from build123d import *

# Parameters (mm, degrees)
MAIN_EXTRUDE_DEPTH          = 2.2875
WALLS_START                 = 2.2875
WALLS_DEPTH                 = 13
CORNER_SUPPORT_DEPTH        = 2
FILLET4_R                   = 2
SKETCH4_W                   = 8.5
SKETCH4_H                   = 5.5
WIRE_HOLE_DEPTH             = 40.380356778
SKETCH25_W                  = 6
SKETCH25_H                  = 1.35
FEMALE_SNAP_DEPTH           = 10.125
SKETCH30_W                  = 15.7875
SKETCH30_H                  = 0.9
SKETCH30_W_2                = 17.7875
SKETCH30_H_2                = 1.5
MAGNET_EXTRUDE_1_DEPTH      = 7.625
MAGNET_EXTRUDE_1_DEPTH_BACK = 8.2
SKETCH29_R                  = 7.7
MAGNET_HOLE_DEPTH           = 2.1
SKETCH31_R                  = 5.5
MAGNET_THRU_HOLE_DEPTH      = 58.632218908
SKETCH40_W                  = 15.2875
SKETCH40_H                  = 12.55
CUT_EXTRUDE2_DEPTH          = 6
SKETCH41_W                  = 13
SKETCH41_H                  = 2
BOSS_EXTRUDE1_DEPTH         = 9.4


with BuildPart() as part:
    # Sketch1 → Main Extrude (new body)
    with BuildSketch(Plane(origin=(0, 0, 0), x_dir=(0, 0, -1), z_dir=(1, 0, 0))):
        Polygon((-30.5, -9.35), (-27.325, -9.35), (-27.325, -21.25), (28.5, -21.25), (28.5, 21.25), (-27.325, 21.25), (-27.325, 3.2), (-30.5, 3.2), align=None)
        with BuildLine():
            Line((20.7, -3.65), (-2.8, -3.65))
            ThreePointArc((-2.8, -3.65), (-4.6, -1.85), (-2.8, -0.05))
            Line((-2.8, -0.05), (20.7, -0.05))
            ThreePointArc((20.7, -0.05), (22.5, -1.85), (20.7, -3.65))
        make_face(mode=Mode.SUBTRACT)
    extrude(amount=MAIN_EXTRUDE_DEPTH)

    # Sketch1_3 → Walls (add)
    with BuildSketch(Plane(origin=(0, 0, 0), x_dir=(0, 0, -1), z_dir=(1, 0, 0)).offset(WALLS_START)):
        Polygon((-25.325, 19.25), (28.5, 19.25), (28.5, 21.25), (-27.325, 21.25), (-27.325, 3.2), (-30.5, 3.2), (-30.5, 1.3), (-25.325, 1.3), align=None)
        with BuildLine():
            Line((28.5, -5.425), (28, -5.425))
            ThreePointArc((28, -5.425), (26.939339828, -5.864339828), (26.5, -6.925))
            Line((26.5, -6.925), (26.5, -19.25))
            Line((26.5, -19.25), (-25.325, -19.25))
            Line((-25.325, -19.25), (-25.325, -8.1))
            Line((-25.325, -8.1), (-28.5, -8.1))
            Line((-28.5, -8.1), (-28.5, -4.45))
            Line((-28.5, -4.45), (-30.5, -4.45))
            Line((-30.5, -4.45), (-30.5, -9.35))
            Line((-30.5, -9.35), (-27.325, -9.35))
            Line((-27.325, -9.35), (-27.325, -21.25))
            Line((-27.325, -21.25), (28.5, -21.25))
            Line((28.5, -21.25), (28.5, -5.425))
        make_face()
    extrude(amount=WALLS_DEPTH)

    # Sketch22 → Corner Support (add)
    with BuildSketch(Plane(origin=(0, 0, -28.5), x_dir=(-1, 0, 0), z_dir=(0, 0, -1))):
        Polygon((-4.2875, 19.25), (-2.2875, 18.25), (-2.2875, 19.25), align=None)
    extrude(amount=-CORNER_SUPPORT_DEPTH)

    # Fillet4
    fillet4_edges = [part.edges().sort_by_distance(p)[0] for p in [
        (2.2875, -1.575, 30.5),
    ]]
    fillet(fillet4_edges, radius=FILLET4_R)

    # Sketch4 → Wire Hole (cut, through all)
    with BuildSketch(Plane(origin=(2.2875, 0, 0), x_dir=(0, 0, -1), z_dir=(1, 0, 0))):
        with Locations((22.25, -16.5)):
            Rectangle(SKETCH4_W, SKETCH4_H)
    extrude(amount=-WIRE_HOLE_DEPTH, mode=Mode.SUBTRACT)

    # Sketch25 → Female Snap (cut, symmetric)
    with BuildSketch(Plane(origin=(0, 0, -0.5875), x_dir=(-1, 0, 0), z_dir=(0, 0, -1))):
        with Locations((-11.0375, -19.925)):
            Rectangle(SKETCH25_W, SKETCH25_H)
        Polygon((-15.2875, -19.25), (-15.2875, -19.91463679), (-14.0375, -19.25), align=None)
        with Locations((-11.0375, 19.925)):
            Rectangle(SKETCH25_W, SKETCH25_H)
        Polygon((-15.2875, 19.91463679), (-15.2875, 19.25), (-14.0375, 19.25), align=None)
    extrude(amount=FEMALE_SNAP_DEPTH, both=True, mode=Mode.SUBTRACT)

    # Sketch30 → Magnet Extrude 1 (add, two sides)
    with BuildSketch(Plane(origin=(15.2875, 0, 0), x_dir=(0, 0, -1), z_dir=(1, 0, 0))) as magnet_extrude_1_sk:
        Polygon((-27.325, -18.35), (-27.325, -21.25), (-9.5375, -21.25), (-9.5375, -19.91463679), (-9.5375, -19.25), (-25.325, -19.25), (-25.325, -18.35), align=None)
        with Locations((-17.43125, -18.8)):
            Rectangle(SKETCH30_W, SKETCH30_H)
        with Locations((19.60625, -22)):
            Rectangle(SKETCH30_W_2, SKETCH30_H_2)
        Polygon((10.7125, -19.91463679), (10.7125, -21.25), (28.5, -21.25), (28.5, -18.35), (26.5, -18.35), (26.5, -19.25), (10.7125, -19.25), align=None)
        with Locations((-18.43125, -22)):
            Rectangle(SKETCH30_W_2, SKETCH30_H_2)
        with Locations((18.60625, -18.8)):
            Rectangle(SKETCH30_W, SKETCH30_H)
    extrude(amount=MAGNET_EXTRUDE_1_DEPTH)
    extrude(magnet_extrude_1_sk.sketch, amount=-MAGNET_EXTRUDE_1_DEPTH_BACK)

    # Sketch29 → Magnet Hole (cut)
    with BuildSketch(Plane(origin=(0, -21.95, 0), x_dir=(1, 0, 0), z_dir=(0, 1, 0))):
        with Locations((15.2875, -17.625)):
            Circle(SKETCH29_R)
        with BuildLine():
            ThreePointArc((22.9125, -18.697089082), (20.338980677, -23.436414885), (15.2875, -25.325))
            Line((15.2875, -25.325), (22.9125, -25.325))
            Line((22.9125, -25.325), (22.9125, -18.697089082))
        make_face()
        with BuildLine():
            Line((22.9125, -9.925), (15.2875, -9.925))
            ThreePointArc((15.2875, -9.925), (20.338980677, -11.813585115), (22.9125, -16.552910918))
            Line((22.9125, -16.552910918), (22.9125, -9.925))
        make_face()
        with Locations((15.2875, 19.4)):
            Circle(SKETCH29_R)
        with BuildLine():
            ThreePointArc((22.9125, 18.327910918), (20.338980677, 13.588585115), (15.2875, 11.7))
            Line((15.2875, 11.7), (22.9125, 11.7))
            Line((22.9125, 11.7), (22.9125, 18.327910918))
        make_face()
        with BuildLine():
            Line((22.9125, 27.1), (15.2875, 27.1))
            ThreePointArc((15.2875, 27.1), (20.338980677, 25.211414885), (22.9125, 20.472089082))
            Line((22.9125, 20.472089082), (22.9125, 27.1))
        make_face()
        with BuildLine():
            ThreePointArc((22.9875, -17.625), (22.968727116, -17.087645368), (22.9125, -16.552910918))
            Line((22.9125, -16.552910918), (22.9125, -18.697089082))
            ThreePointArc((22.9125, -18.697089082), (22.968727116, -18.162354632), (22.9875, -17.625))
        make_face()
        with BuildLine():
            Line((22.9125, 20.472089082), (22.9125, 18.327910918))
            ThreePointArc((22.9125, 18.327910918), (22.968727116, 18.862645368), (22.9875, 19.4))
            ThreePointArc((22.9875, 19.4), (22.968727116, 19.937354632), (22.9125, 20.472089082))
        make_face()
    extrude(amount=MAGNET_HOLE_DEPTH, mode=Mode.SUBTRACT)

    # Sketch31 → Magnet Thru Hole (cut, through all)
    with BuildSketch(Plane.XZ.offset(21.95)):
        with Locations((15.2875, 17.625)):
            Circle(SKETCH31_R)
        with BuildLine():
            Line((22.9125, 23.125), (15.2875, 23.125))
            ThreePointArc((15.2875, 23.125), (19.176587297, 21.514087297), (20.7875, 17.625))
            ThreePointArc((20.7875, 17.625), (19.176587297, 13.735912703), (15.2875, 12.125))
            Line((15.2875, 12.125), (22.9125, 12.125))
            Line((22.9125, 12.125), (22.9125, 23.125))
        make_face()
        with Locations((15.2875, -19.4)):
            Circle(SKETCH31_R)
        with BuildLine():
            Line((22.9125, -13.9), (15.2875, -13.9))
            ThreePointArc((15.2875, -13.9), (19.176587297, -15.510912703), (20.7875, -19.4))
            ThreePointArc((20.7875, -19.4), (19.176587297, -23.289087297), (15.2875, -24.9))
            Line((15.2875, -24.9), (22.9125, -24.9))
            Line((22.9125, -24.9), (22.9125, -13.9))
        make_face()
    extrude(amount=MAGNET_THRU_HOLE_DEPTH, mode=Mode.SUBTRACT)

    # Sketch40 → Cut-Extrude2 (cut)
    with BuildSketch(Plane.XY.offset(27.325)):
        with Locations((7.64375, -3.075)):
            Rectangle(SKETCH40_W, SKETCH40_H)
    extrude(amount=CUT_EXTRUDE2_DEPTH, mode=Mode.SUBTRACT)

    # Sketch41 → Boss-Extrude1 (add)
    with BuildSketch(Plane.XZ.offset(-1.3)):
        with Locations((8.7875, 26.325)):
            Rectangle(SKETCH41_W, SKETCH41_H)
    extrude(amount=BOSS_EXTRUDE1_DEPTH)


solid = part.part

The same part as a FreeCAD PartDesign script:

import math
import FreeCAD as App
import Part
import Sketcher

V = App.Vector
Q = App.Units.Quantity


def edges_at(feature, points):
    """Names of the edges that pass closest to the given points."""
    edges = feature.Shape.Edges
    near = lambda p: min(range(len(edges)), key=lambda i: edges[i].distToShape(Part.Vertex(*p))[0])
    return sorted({f"Edge{near(p) + 1}" for p in points})

doc = App.newDocument("Part")
params = doc.addObject("Spreadsheet::Sheet", "Params")
for row, (alias, value) in enumerate([
    ("sketch1_radius", "1.8 mm"),
    ("sketch1_width", "11.9 mm"),
    ("sketch1_width2", "42.5 mm"),
    ("sketch1_height", "23.5 mm"),
    ("sketch1_width3", "18.05 mm"),
    ("pad1_length", "2.2875 mm"),
    ("sketch2_radius", "1.5 mm"),
    ("sketch2_width", "2 mm"),
    ("sketch2_width2", "1.9 mm"),
    ("sketch2_width3", "4.9 mm"),
    ("sketch2_width4", "11.9 mm"),
    ("pad2_length", "13 mm"),
    ("sketch3_width", "2 mm"),
    ("sketch3_height", "1 mm"),
    ("pad3_length", "2 mm"),
    ("fillet_radius", "2 mm"),
    ("sketch4_width", "5.5 mm"),
    ("sketch4_height", "8.5 mm"),
    ("sketch5_width", "6 mm"),
    ("sketch5_width2", "1.25 mm"),
    ("sketch5_height", "1.35 mm"),
    ("pocket2_length", "20.25 mm"),
    ("sketch6_width", "4.4 mm"),
    ("pad4_length", "7.625 mm"),
    ("pad4_length2", "8.2 mm"),
    ("sketch7_radius", "7.7 mm"),
    ("pocket3_length", "2.1 mm"),
    ("sketch8_radius", "5.5 mm"),
    ("sketch9_height", "12.55 mm"),
    ("pocket5_length", "6 mm"),
    ("sketch10_width", "13 mm"),
    ("sketch10_height", "2 mm"),
    ("pad5_length", "9.4 mm"),
], start=1):
    params.set(f"A{row}", alias)
    params.set(f"B{row}", "=" + value)
    params.setAlias(f"B{row}", alias)

body = doc.addObject("PartDesign::Body", "Body")

# Sketch on YZ plane
sketch1 = doc.addObject("Sketcher::SketchObject", "Sketch")
body.addObject(sketch1)
sketch1.AttachmentSupport = (doc.YZ_Plane, [""])
sketch1.MapMode = "FlatFace"
sketch1.addGeometry(Part.LineSegment(V(-9.3, 30.5, 0), V(-9.3, 27.3, 0)), False)
sketch1.addGeometry(Part.LineSegment(V(-9.3, 27.3, 0), V(-21.2, 27.3, 0)), False)
sketch1.addGeometry(Part.LineSegment(V(-21.2, 27.3, 0), V(-21.2, -28.5, 0)), False)
sketch1.addGeometry(Part.LineSegment(V(-21.2, -28.5, 0), V(21.2, -28.5, 0)), False)
sketch1.addGeometry(Part.LineSegment(V(21.2, -28.5, 0), V(21.2, 27.3, 0)), False)
sketch1.addGeometry(Part.LineSegment(V(21.2, 27.3, 0), V(3.2, 27.3, 0)), False)
sketch1.addGeometry(Part.LineSegment(V(3.2, 27.3, 0), V(3.2, 30.5, 0)), False)
sketch1.addGeometry(Part.LineSegment(V(3.2, 30.5, 0), V(-9.3, 30.5, 0)), False)
sketch1.addGeometry(Part.ArcOfCircle(Part.Circle(V(-1.9, -20.7, 0), V(0, 0, 1), 1.8), math.radians(180), math.radians(360)), False)
sketch1.addGeometry(Part.LineSegment(V(-3.6, -20.7, 0), V(-3.6, 2.8, 0)), False)
sketch1.addGeometry(Part.ArcOfCircle(Part.Circle(V(-1.9, 2.8, 0), V(0, 0, 1), 1.8), math.radians(0), math.radians(180)), False)
sketch1.addGeometry(Part.LineSegment(V(-0.1, 2.8, 0), V(-0.1, -20.7, 0)), False)
sketch1.addConstraint(Sketcher.Constraint("Coincident", 0, 2, 1, 1))
sketch1.addConstraint(Sketcher.Constraint("Coincident", 1, 2, 2, 1))
sketch1.addConstraint(Sketcher.Constraint("Coincident", 2, 2, 3, 1))
sketch1.addConstraint(Sketcher.Constraint("Coincident", 3, 2, 4, 1))
sketch1.addConstraint(Sketcher.Constraint("Coincident", 4, 2, 5, 1))
sketch1.addConstraint(Sketcher.Constraint("Coincident", 5, 2, 6, 1))
sketch1.addConstraint(Sketcher.Constraint("Coincident", 6, 2, 7, 1))
sketch1.addConstraint(Sketcher.Constraint("Coincident", 7, 2, 0, 1))
sketch1.addConstraint(Sketcher.Constraint("Tangent", 8, 1, 9, 1))
sketch1.addConstraint(Sketcher.Constraint("Tangent", 9, 2, 10, 2))
sketch1.addConstraint(Sketcher.Constraint("Tangent", 10, 1, 11, 1))
sketch1.addConstraint(Sketcher.Constraint("Tangent", 11, 2, 8, 2))
sketch1.addConstraint(Sketcher.Constraint("Vertical", 0))
sketch1.addConstraint(Sketcher.Constraint("Horizontal", 1))
sketch1.addConstraint(Sketcher.Constraint("Vertical", 2))
sketch1.addConstraint(Sketcher.Constraint("Horizontal", 3))
sketch1.addConstraint(Sketcher.Constraint("Vertical", 4))
sketch1.addConstraint(Sketcher.Constraint("Horizontal", 5))
sketch1.addConstraint(Sketcher.Constraint("Vertical", 6))
sketch1.addConstraint(Sketcher.Constraint("Horizontal", 7))
sketch1.addConstraint(Sketcher.Constraint("Vertical", 9))
sketch1.addConstraint(Sketcher.Constraint("Vertical", 11))
sketch1.addConstraint(Sketcher.Constraint("Symmetric", 1, 2, 4, 2, -2))
sketch1.addConstraint(Sketcher.Constraint("Radius", 8, Q("1.8 mm")))
sketch1.addConstraint(Sketcher.Constraint("DistanceX", 1, 2, 1, 1, Q("11.9 mm")))
sketch1.addConstraint(Sketcher.Constraint("DistanceX", 3, 1, 3, 2, Q("42.5 mm")))
sketch1.addConstraint(Sketcher.Constraint("DistanceY", 9, 1, 9, 2, Q("23.5 mm")))
sketch1.addConstraint(Sketcher.Constraint("DistanceX", 5, 2, 5, 1, Q("18.05 mm")))
sketch1.addConstraint(Sketcher.Constraint("DistanceY", 8, 3, -1, 1, Q("20.7 mm")))
sketch1.addConstraint(Sketcher.Constraint("DistanceY", 2, 2, -1, 1, Q("28.5 mm")))
sketch1.addConstraint(Sketcher.Constraint("DistanceY", -1, 1, 6, 2, Q("30.5 mm")))
sketch1.addConstraint(Sketcher.Constraint("DistanceX", 0, 2, 10, 3, Q("7.5 mm")))
sketch1.addConstraint(Sketcher.Constraint("DistanceY", 0, 2, 0, 1, Q("3.175 mm")))
sketch1.setExpression("Constraints[23]", "Params.sketch1_radius")
sketch1.setExpression("Constraints[24]", "Params.sketch1_width")
sketch1.setExpression("Constraints[25]", "Params.sketch1_width2")
sketch1.setExpression("Constraints[26]", "Params.sketch1_height")
sketch1.setExpression("Constraints[27]", "Params.sketch1_width3")
pad1 = doc.addObject("PartDesign::Pad", "Pad")
body.addObject(pad1)
pad1.Profile = sketch1
pad1.setExpression("Length", "Params.pad1_length")

# Sketch on YZ plane
sketch2 = doc.addObject("Sketcher::SketchObject", "Sketch001")
body.addObject(sketch2)
sketch2.AttachmentSupport = (doc.YZ_Plane, [""])
sketch2.MapMode = "FlatFace"
sketch2.AttachmentOffset = App.Placement(V(0, 0, 2.2875), App.Rotation())
sketch2.addGeometry(Part.LineSegment(V(19.2, 25.3, 0), V(19.2, -28.5, 0)), False)
sketch2.addGeometry(Part.LineSegment(V(19.2, -28.5, 0), V(21.2, -28.5, 0)), False)
sketch2.addGeometry(Part.LineSegment(V(21.2, -28.5, 0), V(21.2, 27.3, 0)), False)
sketch2.addGeometry(Part.LineSegment(V(21.2, 27.3, 0), V(3.2, 27.3, 0)), False)
sketch2.addGeometry(Part.LineSegment(V(3.2, 27.3, 0), V(3.2, 30.5, 0)), False)
sketch2.addGeometry(Part.LineSegment(V(3.2, 30.5, 0), V(1.3, 30.5, 0)), False)
sketch2.addGeometry(Part.LineSegment(V(1.3, 30.5, 0), V(1.3, 25.3, 0)), False)
sketch2.addGeometry(Part.LineSegment(V(1.3, 25.3, 0), V(19.2, 25.3, 0)), False)
sketch2.addGeometry(Part.LineSegment(V(-5.4, -28.5, 0), V(-5.4, -28, 0)), False)
sketch2.addGeometry(Part.ArcOfCircle(Part.Circle(V(-6.9, -28, 0), V(0, 0, 1), 1.5), math.radians(0), math.radians(90)), False)
sketch2.addGeometry(Part.LineSegment(V(-6.9, -26.5, 0), V(-19.2, -26.5, 0)), False)
sketch2.addGeometry(Part.LineSegment(V(-19.2, -26.5, 0), V(-19.2, 25.3, 0)), False)
sketch2.addGeometry(Part.LineSegment(V(-19.2, 25.3, 0), V(-8.1, 25.3, 0)), False)
sketch2.addGeometry(Part.LineSegment(V(-8.1, 25.3, 0), V(-8.1, 28.5, 0)), False)
sketch2.addGeometry(Part.LineSegment(V(-8.1, 28.5, 0), V(-4.5, 28.5, 0)), False)
sketch2.addGeometry(Part.LineSegment(V(-4.5, 28.5, 0), V(-4.5, 30.5, 0)), False)
sketch2.addGeometry(Part.LineSegment(V(-4.5, 30.5, 0), V(-9.3, 30.5, 0)), False)
sketch2.addGeometry(Part.LineSegment(V(-9.3, 30.5, 0), V(-9.3, 27.3, 0)), False)
sketch2.addGeometry(Part.LineSegment(V(-9.3, 27.3, 0), V(-21.2, 27.3, 0)), False)
sketch2.addGeometry(Part.LineSegment(V(-21.2, 27.3, 0), V(-21.2, -28.5, 0)), False)
sketch2.addGeometry(Part.LineSegment(V(-21.2, -28.5, 0), V(-5.4, -28.5, 0)), False)
sketch2.addConstraint(Sketcher.Constraint("Coincident", 0, 2, 1, 1))
sketch2.addConstraint(Sketcher.Constraint("Coincident", 1, 2, 2, 1))
sketch2.addConstraint(Sketcher.Constraint("Coincident", 2, 2, 3, 1))
sketch2.addConstraint(Sketcher.Constraint("Coincident", 3, 2, 4, 1))
sketch2.addConstraint(Sketcher.Constraint("Coincident", 4, 2, 5, 1))
sketch2.addConstraint(Sketcher.Constraint("Coincident", 5, 2, 6, 1))
sketch2.addConstraint(Sketcher.Constraint("Coincident", 6, 2, 7, 1))
sketch2.addConstraint(Sketcher.Constraint("Coincident", 7, 2, 0, 1))
sketch2.addConstraint(Sketcher.Constraint("Tangent", 8, 2, 9, 1))
sketch2.addConstraint(Sketcher.Constraint("Tangent", 9, 2, 10, 1))
sketch2.addConstraint(Sketcher.Constraint("Coincident", 10, 2, 11, 1))
sketch2.addConstraint(Sketcher.Constraint("Coincident", 11, 2, 12, 1))
sketch2.addConstraint(Sketcher.Constraint("Coincident", 12, 2, 13, 1))
sketch2.addConstraint(Sketcher.Constraint("Coincident", 13, 2, 14, 1))
sketch2.addConstraint(Sketcher.Constraint("Coincident", 14, 2, 15, 1))
sketch2.addConstraint(Sketcher.Constraint("Coincident", 15, 2, 16, 1))
sketch2.addConstraint(Sketcher.Constraint("Coincident", 16, 2, 17, 1))
sketch2.addConstraint(Sketcher.Constraint("Coincident", 17, 2, 18, 1))
sketch2.addConstraint(Sketcher.Constraint("Coincident", 18, 2, 19, 1))
sketch2.addConstraint(Sketcher.Constraint("Coincident", 19, 2, 20, 1))
sketch2.addConstraint(Sketcher.Constraint("Coincident", 20, 2, 8, 1))
sketch2.addConstraint(Sketcher.Constraint("Vertical", 0))
sketch2.addConstraint(Sketcher.Constraint("Horizontal", 1))
sketch2.addConstraint(Sketcher.Constraint("Vertical", 2))
sketch2.addConstraint(Sketcher.Constraint("Horizontal", 3))
sketch2.addConstraint(Sketcher.Constraint("Vertical", 4))
sketch2.addConstraint(Sketcher.Constraint("Horizontal", 5))
sketch2.addConstraint(Sketcher.Constraint("Vertical", 6))
sketch2.addConstraint(Sketcher.Constraint("Horizontal", 7))
sketch2.addConstraint(Sketcher.Constraint("Vertical", 8))
sketch2.addConstraint(Sketcher.Constraint("Horizontal", 10))
sketch2.addConstraint(Sketcher.Constraint("Vertical", 11))
sketch2.addConstraint(Sketcher.Constraint("Horizontal", 12))
sketch2.addConstraint(Sketcher.Constraint("Vertical", 13))
sketch2.addConstraint(Sketcher.Constraint("Horizontal", 14))
sketch2.addConstraint(Sketcher.Constraint("Vertical", 15))
sketch2.addConstraint(Sketcher.Constraint("Horizontal", 16))
sketch2.addConstraint(Sketcher.Constraint("Vertical", 17))
sketch2.addConstraint(Sketcher.Constraint("Horizontal", 18))
sketch2.addConstraint(Sketcher.Constraint("Vertical", 19))
sketch2.addConstraint(Sketcher.Constraint("Horizontal", 20))
sketch2.addConstraint(Sketcher.Constraint("Symmetric", 7, 2, 11, 2, -2))
sketch2.addConstraint(Sketcher.Constraint("Symmetric", 2, 2, 18, 2, -2))
sketch2.addConstraint(Sketcher.Constraint("Horizontal", 5, 2, 15, 2))
sketch2.addConstraint(Sketcher.Constraint("Horizontal", 1, 2, 19, 2))
sketch2.addConstraint(Sketcher.Constraint("Equal", 4, 13))
sketch2.addConstraint(Sketcher.Constraint("Equal", 1, 15))
sketch2.addConstraint(Sketcher.Constraint("Radius", 9, Q("1.5 mm")))
sketch2.addConstraint(Sketcher.Constraint("DistanceX", 1, 1, 1, 2, Q("2 mm")))
sketch2.addConstraint(Sketcher.Constraint("DistanceX", 5, 2, 5, 1, Q("1.9 mm")))
sketch2.addConstraint(Sketcher.Constraint("DistanceX", 16, 2, 16, 1, Q("4.9 mm")))
sketch2.addConstraint(Sketcher.Constraint("DistanceX", 18, 2, 18, 1, Q("11.9 mm")))
sketch2.addConstraint(Sketcher.Constraint("DistanceY", 8, 1, 8, 2, Q("0.5 mm")))
sketch2.addConstraint(Sketcher.Constraint("DistanceY", 9, 3, -1, 1, Q("28 mm")))
sketch2.addConstraint(Sketcher.Constraint("DistanceY", 0, 2, 4, 2, Q("59 mm")))
sketch2.addConstraint(Sketcher.Constraint("DistanceX", 3, 2, 3, 1, Q("18.05 mm")))
sketch2.addConstraint(Sketcher.Constraint("DistanceX", 12, 1, 12, 2, Q("11.15 mm")))
sketch2.addConstraint(Sketcher.Constraint("DistanceX", -1, 1, 3, 2, Q("3.2 mm")))
sketch2.addConstraint(Sketcher.Constraint("DistanceX", 10, 2, 10, 1, Q("12.325 mm")))
sketch2.addConstraint(Sketcher.Constraint("DistanceY", 0, 2, 0, 1, Q("53.825 mm")))
sketch2.setExpression("Constraints[47]", "Params.sketch2_radius")
sketch2.setExpression("Constraints[48]", "Params.sketch2_width")
sketch2.setExpression("Constraints[49]", "Params.sketch2_width2")
sketch2.setExpression("Constraints[50]", "Params.sketch2_width3")
sketch2.setExpression("Constraints[51]", "Params.sketch2_width4")
pad2 = doc.addObject("PartDesign::Pad", "Pad001")
body.addObject(pad2)
pad2.Profile = sketch2
pad2.setExpression("Length", "Params.pad2_length")

# Sketch on XY plane
sketch3 = doc.addObject("Sketcher::SketchObject", "Sketch002")
body.addObject(sketch3)
sketch3.AttachmentSupport = (doc.XY_Plane, [""])
sketch3.MapMode = "FlatFace"
sketch3.AttachmentOffset = App.Placement(V(0, 0, -28.5), App.Rotation())
sketch3.addGeometry(Part.LineSegment(V(4.3, 19.2, 0), V(2.3, 18.2, 0)), False)
sketch3.addGeometry(Part.LineSegment(V(2.3, 18.2, 0), V(2.3, 19.2, 0)), False)
sketch3.addGeometry(Part.LineSegment(V(2.3, 19.2, 0), V(4.3, 19.2, 0)), False)
sketch3.addConstraint(Sketcher.Constraint("Coincident", 0, 2, 1, 1))
sketch3.addConstraint(Sketcher.Constraint("Coincident", 1, 2, 2, 1))
sketch3.addConstraint(Sketcher.Constraint("Coincident", 2, 2, 0, 1))
sketch3.addConstraint(Sketcher.Constraint("Vertical", 1))
sketch3.addConstraint(Sketcher.Constraint("Horizontal", 2))
sketch3.addConstraint(Sketcher.Constraint("DistanceX", 2, 1, 2, 2, Q("2 mm")))
sketch3.addConstraint(Sketcher.Constraint("DistanceY", 1, 1, 1, 2, Q("1 mm")))
sketch3.addConstraint(Sketcher.Constraint("DistanceY", -1, 1, 0, 2, Q("18.25 mm")))
sketch3.addConstraint(Sketcher.Constraint("DistanceX", -1, 1, 0, 2, Q("2.2875 mm")))
sketch3.setExpression("Constraints[5]", "Params.sketch3_width")
sketch3.setExpression("Constraints[6]", "Params.sketch3_height")
pad3 = doc.addObject("PartDesign::Pad", "Pad002")
body.addObject(pad3)
pad3.Profile = sketch3
pad3.setExpression("Length", "Params.pad3_length")
doc.recompute()

fillet = doc.addObject("PartDesign::Fillet", "Fillet")
body.addObject(fillet)
fillet.Base = (pad3, edges_at(pad3, [(2.288, -1.575, 30.5)]))
fillet.setExpression("Radius", "Params.fillet_radius")

# Sketch on YZ plane
sketch4 = doc.addObject("Sketcher::SketchObject", "Sketch003")
body.addObject(sketch4)
sketch4.AttachmentSupport = (doc.YZ_Plane, [""])
sketch4.MapMode = "FlatFace"
sketch4.AttachmentOffset = App.Placement(V(0, 0, 2.2875), App.Rotation())
sketch4.addGeometry(Part.LineSegment(V(-14, -18, 0), V(-19, -18, 0)), False)
sketch4.addGeometry(Part.LineSegment(V(-19, -18, 0), V(-19, -26, 0)), False)
sketch4.addGeometry(Part.LineSegment(V(-19, -26, 0), V(-14, -26, 0)), False)
sketch4.addGeometry(Part.LineSegment(V(-14, -26, 0), V(-14, -18, 0)), False)
sketch4.addConstraint(Sketcher.Constraint("Coincident", 0, 2, 1, 1))
sketch4.addConstraint(Sketcher.Constraint("Coincident", 1, 2, 2, 1))
sketch4.addConstraint(Sketcher.Constraint("Coincident", 2, 2, 3, 1))
sketch4.addConstraint(Sketcher.Constraint("Coincident", 3, 2, 0, 1))
sketch4.addConstraint(Sketcher.Constraint("Horizontal", 0))
sketch4.addConstraint(Sketcher.Constraint("Vertical", 1))
sketch4.addConstraint(Sketcher.Constraint("Horizontal", 2))
sketch4.addConstraint(Sketcher.Constraint("Vertical", 3))
sketch4.addConstraint(Sketcher.Constraint("DistanceX", 0, 2, 0, 1, Q("5.5 mm")))
sketch4.addConstraint(Sketcher.Constraint("DistanceY", 1, 2, 1, 1, Q("8.5 mm")))
sketch4.addConstraint(Sketcher.Constraint("DistanceY", 0, 2, -1, 1, Q("18 mm")))
sketch4.addConstraint(Sketcher.Constraint("DistanceX", 0, 2, -1, 1, Q("19.25 mm")))
sketch4.setExpression("Constraints[8]", "Params.sketch4_width")
sketch4.setExpression("Constraints[9]", "Params.sketch4_height")
pocket1 = doc.addObject("PartDesign::Pocket", "Pocket")
body.addObject(pocket1)
pocket1.Profile = sketch4
pocket1.Type = "ThroughAll"

# Sketch on XY plane
sketch5 = doc.addObject("Sketcher::SketchObject", "Sketch004")
body.addObject(sketch5)
sketch5.AttachmentSupport = (doc.XY_Plane, [""])
sketch5.MapMode = "FlatFace"
sketch5.AttachmentOffset = App.Placement(V(0, 0, -0.5875), App.Rotation())
sketch5.addGeometry(Part.LineSegment(V(14, -19.2, 0), V(14, -20.6, 0)), False)
sketch5.addGeometry(Part.LineSegment(V(14, -20.6, 0), V(8, -20.6, 0)), False)
sketch5.addGeometry(Part.LineSegment(V(8, -20.6, 0), V(8, -19.2, 0)), False)
sketch5.addGeometry(Part.LineSegment(V(8, -19.2, 0), V(14, -19.2, 0)), False)
sketch5.addGeometry(Part.LineSegment(V(15.3, -19.2, 0), V(15.3, -19.9, 0)), False)
sketch5.addGeometry(Part.LineSegment(V(15.3, -19.9, 0), V(14, -19.2, 0)), False)
sketch5.addGeometry(Part.LineSegment(V(14, -19.2, 0), V(15.3, -19.2, 0)), False)
sketch5.addGeometry(Part.LineSegment(V(14, 20.6, 0), V(14, 19.2, 0)), False)
sketch5.addGeometry(Part.LineSegment(V(14, 19.2, 0), V(8, 19.2, 0)), False)
sketch5.addGeometry(Part.LineSegment(V(8, 19.2, 0), V(8, 20.6, 0)), False)
sketch5.addGeometry(Part.LineSegment(V(8, 20.6, 0), V(14, 20.6, 0)), False)
sketch5.addGeometry(Part.LineSegment(V(15.3, 19.9, 0), V(15.3, 19.2, 0)), False)
sketch5.addGeometry(Part.LineSegment(V(15.3, 19.2, 0), V(14, 19.2, 0)), False)
sketch5.addGeometry(Part.LineSegment(V(14, 19.2, 0), V(15.3, 19.9, 0)), False)
sketch5.addConstraint(Sketcher.Constraint("Coincident", 0, 2, 1, 1))
sketch5.addConstraint(Sketcher.Constraint("Coincident", 1, 2, 2, 1))
sketch5.addConstraint(Sketcher.Constraint("Coincident", 2, 2, 3, 1))
sketch5.addConstraint(Sketcher.Constraint("Coincident", 3, 2, 0, 1))
sketch5.addConstraint(Sketcher.Constraint("Coincident", 4, 2, 5, 1))
sketch5.addConstraint(Sketcher.Constraint("Coincident", 5, 2, 6, 1))
sketch5.addConstraint(Sketcher.Constraint("Coincident", 6, 2, 4, 1))
sketch5.addConstraint(Sketcher.Constraint("Coincident", 7, 2, 8, 1))
sketch5.addConstraint(Sketcher.Constraint("Coincident", 8, 2, 9, 1))
sketch5.addConstraint(Sketcher.Constraint("Coincident", 9, 2, 10, 1))
sketch5.addConstraint(Sketcher.Constraint("Coincident", 10, 2, 7, 1))
sketch5.addConstraint(Sketcher.Constraint("Coincident", 11, 2, 12, 1))
sketch5.addConstraint(Sketcher.Constraint("Coincident", 12, 2, 13, 1))
sketch5.addConstraint(Sketcher.Constraint("Coincident", 13, 2, 11, 1))
sketch5.addConstraint(Sketcher.Constraint("Vertical", 0))
sketch5.addConstraint(Sketcher.Constraint("Horizontal", 1))
sketch5.addConstraint(Sketcher.Constraint("Vertical", 2))
sketch5.addConstraint(Sketcher.Constraint("Horizontal", 3))
sketch5.addConstraint(Sketcher.Constraint("Vertical", 4))
sketch5.addConstraint(Sketcher.Constraint("Horizontal", 6))
sketch5.addConstraint(Sketcher.Constraint("Vertical", 7))
sketch5.addConstraint(Sketcher.Constraint("Horizontal", 8))
sketch5.addConstraint(Sketcher.Constraint("Vertical", 9))
sketch5.addConstraint(Sketcher.Constraint("Horizontal", 10))
sketch5.addConstraint(Sketcher.Constraint("Vertical", 11))
sketch5.addConstraint(Sketcher.Constraint("Horizontal", 12))
sketch5.addConstraint(Sketcher.Constraint("Coincident", 5, 2, 3, 2))
sketch5.addConstraint(Sketcher.Constraint("Coincident", 12, 2, 7, 2))
sketch5.addConstraint(Sketcher.Constraint("Symmetric", 3, 2, 7, 2, -1))
sketch5.addConstraint(Sketcher.Constraint("Symmetric", 1, 2, 9, 2, -1))
sketch5.addConstraint(Sketcher.Constraint("Symmetric", 4, 2, 13, 2, -1))
sketch5.addConstraint(Sketcher.Constraint("DistanceX", 1, 2, 1, 1, Q("6 mm")))
sketch5.addConstraint(Sketcher.Constraint("Angle", 5, Q("152 deg")))
sketch5.addConstraint(Sketcher.Constraint("DistanceX", 6, 1, 6, 2, Q("1.25 mm")))
sketch5.addConstraint(Sketcher.Constraint("DistanceY", 0, 2, 0, 1, Q("1.35 mm")))
sketch5.addConstraint(Sketcher.Constraint("DistanceY", 0, 2, -1, 1, Q("20.6 mm")))
sketch5.addConstraint(Sketcher.Constraint("DistanceX", -1, 1, 0, 2, Q("14.0375 mm")))
sketch5.setExpression("Constraints[31]", "Params.sketch5_width")
sketch5.setExpression("Constraints[33]", "Params.sketch5_width2")
sketch5.setExpression("Constraints[34]", "Params.sketch5_height")
pocket2 = doc.addObject("PartDesign::Pocket", "Pocket001")
body.addObject(pocket2)
pocket2.Profile = sketch5
pocket2.setExpression("Length", "Params.pocket2_length")
pocket2.Midplane = True

# Sketch on YZ plane
sketch6 = doc.addObject("Sketcher::SketchObject", "Sketch005")
body.addObject(sketch6)
sketch6.AttachmentSupport = (doc.YZ_Plane, [""])
sketch6.MapMode = "FlatFace"
sketch6.AttachmentOffset = App.Placement(V(0, 0, 15.2875), App.Rotation())
sketch6.addGeometry(Part.LineSegment(V(-18.4, 27.3, 0), V(-22.8, 27.3, 0)), False)
sketch6.addGeometry(Part.LineSegment(V(-22.8, 27.3, 0), V(-22.8, 9.5, 0)), False)
sketch6.addGeometry(Part.LineSegment(V(-22.8, 9.5, 0), V(-18.4, 9.5, 0)), False)
sketch6.addGeometry(Part.LineSegment(V(-18.4, 9.5, 0), V(-18.4, 27.3, 0)), False)
sketch6.addGeometry(Part.LineSegment(V(-22.8, -10.7, 0), V(-22.8, -28.5, 0)), False)
sketch6.addGeometry(Part.LineSegment(V(-22.8, -28.5, 0), V(-18.4, -28.5, 0)), False)
sketch6.addGeometry(Part.LineSegment(V(-18.4, -28.5, 0), V(-18.4, -10.7, 0)), False)
sketch6.addGeometry(Part.LineSegment(V(-18.4, -10.7, 0), V(-22.8, -10.7, 0)), False)
sketch6.addConstraint(Sketcher.Constraint("Coincident", 0, 2, 1, 1))
sketch6.addConstraint(Sketcher.Constraint("Coincident", 1, 2, 2, 1))
sketch6.addConstraint(Sketcher.Constraint("Coincident", 2, 2, 3, 1))
sketch6.addConstraint(Sketcher.Constraint("Coincident", 3, 2, 0, 1))
sketch6.addConstraint(Sketcher.Constraint("Coincident", 4, 2, 5, 1))
sketch6.addConstraint(Sketcher.Constraint("Coincident", 5, 2, 6, 1))
sketch6.addConstraint(Sketcher.Constraint("Coincident", 6, 2, 7, 1))
sketch6.addConstraint(Sketcher.Constraint("Coincident", 7, 2, 4, 1))
sketch6.addConstraint(Sketcher.Constraint("Horizontal", 0))
sketch6.addConstraint(Sketcher.Constraint("Vertical", 1))
sketch6.addConstraint(Sketcher.Constraint("Horizontal", 2))
sketch6.addConstraint(Sketcher.Constraint("Vertical", 3))
sketch6.addConstraint(Sketcher.Constraint("Vertical", 4))
sketch6.addConstraint(Sketcher.Constraint("Horizontal", 5))
sketch6.addConstraint(Sketcher.Constraint("Vertical", 6))
sketch6.addConstraint(Sketcher.Constraint("Horizontal", 7))
sketch6.addConstraint(Sketcher.Constraint("Vertical", 1, 2, 4, 2))
sketch6.addConstraint(Sketcher.Constraint("Vertical", 3, 2, 5, 2))
sketch6.addConstraint(Sketcher.Constraint("Equal", 3, 4))
sketch6.addConstraint(Sketcher.Constraint("DistanceX", 0, 2, 0, 1, Q("4.4 mm")))
sketch6.addConstraint(Sketcher.Constraint("DistanceY", 4, 2, -1, 1, Q("28.5 mm")))
sketch6.addConstraint(Sketcher.Constraint("DistanceX", 0, 2, -1, 1, Q("22.75 mm")))
sketch6.addConstraint(Sketcher.Constraint("DistanceY", 6, 2, 2, 2, Q("20.25 mm")))
sketch6.addConstraint(Sketcher.Constraint("DistanceY", 1, 2, 1, 1, Q("17.7875 mm")))
sketch6.setExpression("Constraints[19]", "Params.sketch6_width")
pad4 = doc.addObject("PartDesign::Pad", "Pad003")
body.addObject(pad4)
pad4.Profile = sketch6
pad4.Type = "TwoLengths"
pad4.setExpression("Length", "Params.pad4_length")
pad4.setExpression("Length2", "Params.pad4_length2")

# Sketch on XZ plane
sketch7 = doc.addObject("Sketcher::SketchObject", "Sketch006")
body.addObject(sketch7)
sketch7.AttachmentSupport = (doc.XZ_Plane, [""])
sketch7.MapMode = "FlatFace"
sketch7.AttachmentOffset = App.Placement(V(0, 0, 21.95), App.Rotation())
sketch7.addGeometry(Part.ArcOfCircle(Part.Circle(V(15.3, 17.6, 0), V(0, 0, 1), 7.7), math.radians(90), math.radians(270)), False)
sketch7.addGeometry(Part.LineSegment(V(15.3, 25.3, 0), V(22.9, 25.3, 0)), False)
sketch7.addGeometry(Part.LineSegment(V(22.9, 25.3, 0), V(22.9, 18.7, 0)), False)
sketch7.addGeometry(Part.ArcOfCircle(Part.Circle(V(15.3, 17.6, 0), V(0, 0, 1), 7.7), math.radians(-8), math.radians(8)), False)
sketch7.addGeometry(Part.LineSegment(V(22.9, 16.6, 0), V(22.9, 9.9, 0)), False)
sketch7.addGeometry(Part.LineSegment(V(22.9, 9.9, 0), V(15.3, 9.9, 0)), False)
sketch7.addGeometry(Part.ArcOfCircle(Part.Circle(V(15.3, -19.4, 0), V(0, 0, 1), 7.7), math.radians(90), math.radians(270)), False)
sketch7.addGeometry(Part.LineSegment(V(15.3, -11.7, 0), V(22.9, -11.7, 0)), False)
sketch7.addGeometry(Part.LineSegment(V(22.9, -11.7, 0), V(22.9, -18.3, 0)), False)
sketch7.addGeometry(Part.ArcOfCircle(Part.Circle(V(15.3, -19.4, 0), V(0, 0, 1), 7.7), math.radians(-8), math.radians(8)), False)
sketch7.addGeometry(Part.LineSegment(V(22.9, -20.5, 0), V(22.9, -27.1, 0)), False)
sketch7.addGeometry(Part.LineSegment(V(22.9, -27.1, 0), V(15.3, -27.1, 0)), False)
sketch7.addConstraint(Sketcher.Constraint("Tangent", 0, 1, 1, 1))
sketch7.addConstraint(Sketcher.Constraint("Coincident", 1, 2, 2, 1))
sketch7.addConstraint(Sketcher.Constraint("Coincident", 2, 2, 3, 2))
sketch7.addConstraint(Sketcher.Constraint("Coincident", 3, 1, 4, 1))
sketch7.addConstraint(Sketcher.Constraint("Coincident", 4, 2, 5, 1))
sketch7.addConstraint(Sketcher.Constraint("Tangent", 5, 2, 0, 2))
sketch7.addConstraint(Sketcher.Constraint("Tangent", 6, 1, 7, 1))
sketch7.addConstraint(Sketcher.Constraint("Coincident", 7, 2, 8, 1))
sketch7.addConstraint(Sketcher.Constraint("Coincident", 8, 2, 9, 2))
sketch7.addConstraint(Sketcher.Constraint("Coincident", 9, 1, 10, 1))
sketch7.addConstraint(Sketcher.Constraint("Coincident", 10, 2, 11, 1))
sketch7.addConstraint(Sketcher.Constraint("Tangent", 11, 2, 6, 2))
sketch7.addConstraint(Sketcher.Constraint("Horizontal", 1))
sketch7.addConstraint(Sketcher.Constraint("Vertical", 2))
sketch7.addConstraint(Sketcher.Constraint("Vertical", 4))
sketch7.addConstraint(Sketcher.Constraint("Horizontal", 5))
sketch7.addConstraint(Sketcher.Constraint("Horizontal", 7))
sketch7.addConstraint(Sketcher.Constraint("Vertical", 8))
sketch7.addConstraint(Sketcher.Constraint("Vertical", 10))
sketch7.addConstraint(Sketcher.Constraint("Horizontal", 11))
sketch7.addConstraint(Sketcher.Constraint("Coincident", 3, 3, 0, 3))
sketch7.addConstraint(Sketcher.Constraint("Coincident", 9, 3, 6, 3))
sketch7.addConstraint(Sketcher.Constraint("Equal", 0, 3))
sketch7.addConstraint(Sketcher.Constraint("Equal", 3, 6))
sketch7.addConstraint(Sketcher.Constraint("Equal", 6, 9))
sketch7.addConstraint(Sketcher.Constraint("Vertical", 3, 3, 6, 3))
sketch7.addConstraint(Sketcher.Constraint("Vertical", 2, 2, 3, 1))
sketch7.addConstraint(Sketcher.Constraint("Vertical", 4, 2, 7, 2))
sketch7.addConstraint(Sketcher.Constraint("Vertical", 8, 2, 9, 1))
sketch7.addConstraint(Sketcher.Constraint("Radius", 0, Q("7.7 mm")))
sketch7.addConstraint(Sketcher.Constraint("DistanceY", 6, 3, -1, 1, Q("19.4 mm")))
sketch7.addConstraint(Sketcher.Constraint("DistanceX", 1, 1, 1, 2, Q("7.625 mm")))
sketch7.addConstraint(Sketcher.Constraint("DistanceY", -1, 1, 0, 3, Q("17.625 mm")))
sketch7.addConstraint(Sketcher.Constraint("DistanceX", -1, 1, 0, 3, Q("15.2875 mm")))
sketch7.setExpression("Constraints[29]", "Params.sketch7_radius")
pocket3 = doc.addObject("PartDesign::Pocket", "Pocket002")
body.addObject(pocket3)
pocket3.Profile = sketch7
pocket3.setExpression("Length", "Params.pocket3_length")

# Sketch on XZ plane
sketch8 = doc.addObject("Sketcher::SketchObject", "Sketch007")
body.addObject(sketch8)
sketch8.AttachmentSupport = (doc.XZ_Plane, [""])
sketch8.MapMode = "FlatFace"
sketch8.AttachmentOffset = App.Placement(V(0, 0, 21.95), App.Rotation())
sketch8.addGeometry(Part.ArcOfCircle(Part.Circle(V(15, 18, 0), V(0, 0, 1), 6), math.radians(90), math.radians(270)), False)
sketch8.addGeometry(Part.LineSegment(V(15, 12, 0), V(23, 12, 0)), False)
sketch8.addGeometry(Part.LineSegment(V(23, 12, 0), V(23, 23, 0)), False)
sketch8.addGeometry(Part.LineSegment(V(23, 23, 0), V(15, 23, 0)), False)
sketch8.addGeometry(Part.ArcOfCircle(Part.Circle(V(15, -19, 0), V(0, 0, 1), 6), math.radians(90), math.radians(270)), False)
sketch8.addGeometry(Part.LineSegment(V(15, -25, 0), V(23, -25, 0)), False)
sketch8.addGeometry(Part.LineSegment(V(23, -25, 0), V(23, -14, 0)), False)
sketch8.addGeometry(Part.LineSegment(V(23, -14, 0), V(15, -14, 0)), False)
sketch8.addConstraint(Sketcher.Constraint("Tangent", 0, 2, 1, 1))
sketch8.addConstraint(Sketcher.Constraint("Coincident", 1, 2, 2, 1))
sketch8.addConstraint(Sketcher.Constraint("Coincident", 2, 2, 3, 1))
sketch8.addConstraint(Sketcher.Constraint("Tangent", 3, 2, 0, 1))
sketch8.addConstraint(Sketcher.Constraint("Tangent", 4, 2, 5, 1))
sketch8.addConstraint(Sketcher.Constraint("Coincident", 5, 2, 6, 1))
sketch8.addConstraint(Sketcher.Constraint("Coincident", 6, 2, 7, 1))
sketch8.addConstraint(Sketcher.Constraint("Tangent", 7, 2, 4, 1))
sketch8.addConstraint(Sketcher.Constraint("Horizontal", 1))
sketch8.addConstraint(Sketcher.Constraint("Vertical", 2))
sketch8.addConstraint(Sketcher.Constraint("Horizontal", 3))
sketch8.addConstraint(Sketcher.Constraint("Horizontal", 5))
sketch8.addConstraint(Sketcher.Constraint("Vertical", 6))
sketch8.addConstraint(Sketcher.Constraint("Horizontal", 7))
sketch8.addConstraint(Sketcher.Constraint("Equal", 0, 4))
sketch8.addConstraint(Sketcher.Constraint("Vertical", 0, 3, 4, 3))
sketch8.addConstraint(Sketcher.Constraint("Vertical", 2, 2, 5, 2))
sketch8.addConstraint(Sketcher.Constraint("Radius", 0, Q("5.5 mm")))
sketch8.addConstraint(Sketcher.Constraint("DistanceY", 4, 3, -1, 1, Q("19.4 mm")))
sketch8.addConstraint(Sketcher.Constraint("DistanceX", 1, 1, 1, 2, Q("7.625 mm")))
sketch8.addConstraint(Sketcher.Constraint("DistanceY", -1, 1, 0, 3, Q("17.625 mm")))
sketch8.addConstraint(Sketcher.Constraint("DistanceX", -1, 1, 0, 3, Q("15.2875 mm")))
sketch8.setExpression("Constraints[17]", "Params.sketch8_radius")
pocket4 = doc.addObject("PartDesign::Pocket", "Pocket003")
body.addObject(pocket4)
pocket4.Profile = sketch8
pocket4.Type = "ThroughAll"
pocket4.Reversed = True

# Sketch on XY plane
sketch9 = doc.addObject("Sketcher::SketchObject", "Sketch008")
body.addObject(sketch9)
sketch9.AttachmentSupport = (doc.XY_Plane, [""])
sketch9.MapMode = "FlatFace"
sketch9.AttachmentOffset = App.Placement(V(0, 0, 27.325), App.Rotation())
sketch9.addGeometry(Part.LineSegment(V(0, 3, 0), V(0, -9, 0)), False)
sketch9.addGeometry(Part.LineSegment(V(0, -9, 0), V(15, -9, 0)), False)
sketch9.addGeometry(Part.LineSegment(V(15, -9, 0), V(15, 3, 0)), False)
sketch9.addGeometry(Part.LineSegment(V(15, 3, 0), V(0, 3, 0)), False)
sketch9.addConstraint(Sketcher.Constraint("Coincident", 0, 2, 1, 1))
sketch9.addConstraint(Sketcher.Constraint("Coincident", 1, 2, 2, 1))
sketch9.addConstraint(Sketcher.Constraint("Coincident", 2, 2, 3, 1))
sketch9.addConstraint(Sketcher.Constraint("Coincident", 3, 2, 0, 1))
sketch9.addConstraint(Sketcher.Constraint("Vertical", 0))
sketch9.addConstraint(Sketcher.Constraint("Horizontal", 1))
sketch9.addConstraint(Sketcher.Constraint("Vertical", 2))
sketch9.addConstraint(Sketcher.Constraint("Horizontal", 3))
sketch9.addConstraint(Sketcher.Constraint("PointOnObject", 0, 2, -2))
sketch9.addConstraint(Sketcher.Constraint("DistanceY", 0, 2, 0, 1, Q("12.55 mm")))
sketch9.addConstraint(Sketcher.Constraint("DistanceY", -1, 1, 2, 2, Q("3.2 mm")))
sketch9.addConstraint(Sketcher.Constraint("DistanceX", 1, 1, 1, 2, Q("15.2875 mm")))
sketch9.setExpression("Constraints[9]", "Params.sketch9_height")
pocket5 = doc.addObject("PartDesign::Pocket", "Pocket004")
body.addObject(pocket5)
pocket5.Profile = sketch9
pocket5.setExpression("Length", "Params.pocket5_length")
pocket5.Reversed = True

# Sketch on XZ plane
sketch10 = doc.addObject("Sketcher::SketchObject", "Sketch009")
body.addObject(sketch10)
sketch10.AttachmentSupport = (doc.XZ_Plane, [""])
sketch10.MapMode = "FlatFace"
sketch10.AttachmentOffset = App.Placement(V(0, 0, -1.3), App.Rotation())
sketch10.addGeometry(Part.LineSegment(V(2.3, 27.3, 0), V(2.3, 25.3, 0)), False)
sketch10.addGeometry(Part.LineSegment(V(2.3, 25.3, 0), V(15.3, 25.3, 0)), False)
sketch10.addGeometry(Part.LineSegment(V(15.3, 25.3, 0), V(15.3, 27.3, 0)), False)
sketch10.addGeometry(Part.LineSegment(V(15.3, 27.3, 0), V(2.3, 27.3, 0)), False)
sketch10.addConstraint(Sketcher.Constraint("Coincident", 0, 2, 1, 1))
sketch10.addConstraint(Sketcher.Constraint("Coincident", 1, 2, 2, 1))
sketch10.addConstraint(Sketcher.Constraint("Coincident", 2, 2, 3, 1))
sketch10.addConstraint(Sketcher.Constraint("Coincident", 3, 2, 0, 1))
sketch10.addConstraint(Sketcher.Constraint("Vertical", 0))
sketch10.addConstraint(Sketcher.Constraint("Horizontal", 1))
sketch10.addConstraint(Sketcher.Constraint("Vertical", 2))
sketch10.addConstraint(Sketcher.Constraint("Horizontal", 3))
sketch10.addConstraint(Sketcher.Constraint("DistanceX", 1, 1, 1, 2, Q("13 mm")))
sketch10.addConstraint(Sketcher.Constraint("DistanceY", 0, 2, 0, 1, Q("2 mm")))
sketch10.addConstraint(Sketcher.Constraint("DistanceY", -1, 1, 0, 2, Q("25.325 mm")))
sketch10.addConstraint(Sketcher.Constraint("DistanceX", -1, 1, 0, 2, Q("2.2875 mm")))
sketch10.setExpression("Constraints[8]", "Params.sketch10_width")
sketch10.setExpression("Constraints[9]", "Params.sketch10_height")
pad5 = doc.addObject("PartDesign::Pad", "Pad004")
body.addObject(pad5)
pad5.Profile = sketch10
pad5.setExpression("Length", "Params.pad5_length")

doc.recompute()
